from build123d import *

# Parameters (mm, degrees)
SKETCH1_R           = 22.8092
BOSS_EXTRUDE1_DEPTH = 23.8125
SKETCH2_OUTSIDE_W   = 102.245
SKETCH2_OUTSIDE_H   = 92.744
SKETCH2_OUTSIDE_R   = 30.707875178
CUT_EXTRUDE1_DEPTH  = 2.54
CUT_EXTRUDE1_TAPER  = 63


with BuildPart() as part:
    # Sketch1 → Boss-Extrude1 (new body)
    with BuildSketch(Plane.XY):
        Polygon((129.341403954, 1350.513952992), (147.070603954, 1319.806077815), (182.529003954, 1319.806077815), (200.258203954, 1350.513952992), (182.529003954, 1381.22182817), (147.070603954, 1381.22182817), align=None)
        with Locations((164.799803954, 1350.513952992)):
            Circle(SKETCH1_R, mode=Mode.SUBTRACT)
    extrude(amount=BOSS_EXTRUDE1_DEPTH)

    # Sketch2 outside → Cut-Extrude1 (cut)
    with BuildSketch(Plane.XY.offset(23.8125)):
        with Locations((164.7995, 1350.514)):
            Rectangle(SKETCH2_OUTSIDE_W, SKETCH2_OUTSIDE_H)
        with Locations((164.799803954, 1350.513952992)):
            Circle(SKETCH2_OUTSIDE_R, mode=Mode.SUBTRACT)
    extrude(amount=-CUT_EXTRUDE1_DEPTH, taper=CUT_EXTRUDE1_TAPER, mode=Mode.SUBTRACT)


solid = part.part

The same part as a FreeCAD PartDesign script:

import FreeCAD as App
import Part
import Sketcher
Q = App.Units.Quantity


def add_polygon(sketch, points):
    """Adds a closed chain of lines whose ends are joined by coincident constraints."""
    first, n = sketch.GeometryCount, len(points)
    for a, b in zip(points, points[1:] + points[:1]):
        sketch.addGeometry(Part.LineSegment(App.Vector(*a, 0), App.Vector(*b, 0)), False)
    for i in range(n):
        sketch.addConstraint(Sketcher.Constraint("Coincident", first + i, 2, first + (i + 1) % n, 1))

doc = App.newDocument("Part")
body = doc.addObject("PartDesign::Body", "Body")

# Sketch on XY plane
sketch1 = body.newObject("Sketcher::SketchObject", "Sketch")
sketch1.AttachmentSupport = (doc.getObject("XY_Plane"), [""])
sketch1.MapMode = "FlatFace"
add_polygon(sketch1, [(129.341404, 1350.513953), (147.070604, 1319.806078), (182.529004, 1319.806078), (200.258204, 1350.513953), (182.529004, 1381.221828), (147.070604, 1381.221828)])  # lines 0-5
sketch1.addGeometry(Part.Circle(App.Vector(164.799804, 1350.513953, 0), App.Vector(0, 0, 1), 22.8092), False)  # 6
sketch1.addConstraint([
    Sketcher.Constraint("Horizontal", 1),
    Sketcher.Constraint("Horizontal", 4),
    Sketcher.Constraint("Parallel", 0, 3),
    Sketcher.Constraint("Parallel", 2, 5),
    Sketcher.Constraint("Horizontal", 6, 3, 2, 2),
    Sketcher.Constraint("Horizontal", 2, 2, 5, 2),
    Sketcher.Constraint("Vertical", 1, 2, 3, 2),
    Sketcher.Constraint("Vertical", 0, 2, 4, 2),
    Sketcher.Constraint("Diameter", 6, Q("1.796 in")),
    Sketcher.Constraint("Angle", 0, Q("-60 deg")),
    Sketcher.Constraint("DistanceX", 1, 1, 1, 2, Q("1.396 in")),
    Sketcher.Constraint("Distance", 0, Q("1.396 in")),
    Sketcher.Constraint("DistanceX", 0, 2, 6, 3, Q("0.698 in")),
    Sketcher.Constraint("DistanceY", -1, 1, 3, 2, Q("1381.221828 mm")),
    Sketcher.Constraint("DistanceX", -1, 1, 6, 3, Q("164.799804 mm")),
])
pad1 = body.newObject("PartDesign::Pad", "Pad")
pad1.Profile = sketch1
pad1.Length = Q("0.9375 in")

# Sketch on XY plane
sketch2 = body.newObject("Sketcher::SketchObject", "Sketch001")
sketch2.AttachmentSupport = (doc.getObject("XY_Plane"), [""])
sketch2.MapMode = "FlatFace"
sketch2.AttachmentOffset = App.Placement(App.Vector(0, 0, 0.9375 * 25.4), App.Rotation())
add_polygon(sketch2, [(113.677, 1396.886), (113.677, 1304.142), (215.922, 1304.142), (215.922, 1396.886)])  # lines 0-3
sketch2.addGeometry(Part.Circle(App.Vector(164.799804, 1350.513953, 0), App.Vector(0, 0, 1), 30.707875), False)  # 4
sketch2.addConstraint([
    Sketcher.Constraint("Vertical", 0),
    Sketcher.Constraint("Horizontal", 1),
    Sketcher.Constraint("Vertical", 2),
    Sketcher.Constraint("Horizontal", 3),
    Sketcher.Constraint("Diameter", 4, Q("61.41575 mm")),
    Sketcher.Constraint("DistanceX", 1, 1, 1, 2, Q("102.245 mm")),
    Sketcher.Constraint("DistanceY", 0, 2, 0, 1, Q("92.744 mm")),
    Sketcher.Constraint("DistanceX", -1, 1, 0, 2, Q("113.677 mm")),
    Sketcher.Constraint("DistanceY", -1, 1, 0, 2, Q("1304.142 mm")),
    Sketcher.Constraint("DistanceX", -1, 1, 4, 3, Q("164.799804 mm")),
    Sketcher.Constraint("DistanceY", -1, 1, 4, 3, Q("1350.513953 mm")),
])
pocket1 = body.newObject("PartDesign::Pocket", "Pocket")
pocket1.Profile = sketch2
pocket1.Length = Q("0.1 in")
pocket1.TaperAngle = 63

doc.recompute()
